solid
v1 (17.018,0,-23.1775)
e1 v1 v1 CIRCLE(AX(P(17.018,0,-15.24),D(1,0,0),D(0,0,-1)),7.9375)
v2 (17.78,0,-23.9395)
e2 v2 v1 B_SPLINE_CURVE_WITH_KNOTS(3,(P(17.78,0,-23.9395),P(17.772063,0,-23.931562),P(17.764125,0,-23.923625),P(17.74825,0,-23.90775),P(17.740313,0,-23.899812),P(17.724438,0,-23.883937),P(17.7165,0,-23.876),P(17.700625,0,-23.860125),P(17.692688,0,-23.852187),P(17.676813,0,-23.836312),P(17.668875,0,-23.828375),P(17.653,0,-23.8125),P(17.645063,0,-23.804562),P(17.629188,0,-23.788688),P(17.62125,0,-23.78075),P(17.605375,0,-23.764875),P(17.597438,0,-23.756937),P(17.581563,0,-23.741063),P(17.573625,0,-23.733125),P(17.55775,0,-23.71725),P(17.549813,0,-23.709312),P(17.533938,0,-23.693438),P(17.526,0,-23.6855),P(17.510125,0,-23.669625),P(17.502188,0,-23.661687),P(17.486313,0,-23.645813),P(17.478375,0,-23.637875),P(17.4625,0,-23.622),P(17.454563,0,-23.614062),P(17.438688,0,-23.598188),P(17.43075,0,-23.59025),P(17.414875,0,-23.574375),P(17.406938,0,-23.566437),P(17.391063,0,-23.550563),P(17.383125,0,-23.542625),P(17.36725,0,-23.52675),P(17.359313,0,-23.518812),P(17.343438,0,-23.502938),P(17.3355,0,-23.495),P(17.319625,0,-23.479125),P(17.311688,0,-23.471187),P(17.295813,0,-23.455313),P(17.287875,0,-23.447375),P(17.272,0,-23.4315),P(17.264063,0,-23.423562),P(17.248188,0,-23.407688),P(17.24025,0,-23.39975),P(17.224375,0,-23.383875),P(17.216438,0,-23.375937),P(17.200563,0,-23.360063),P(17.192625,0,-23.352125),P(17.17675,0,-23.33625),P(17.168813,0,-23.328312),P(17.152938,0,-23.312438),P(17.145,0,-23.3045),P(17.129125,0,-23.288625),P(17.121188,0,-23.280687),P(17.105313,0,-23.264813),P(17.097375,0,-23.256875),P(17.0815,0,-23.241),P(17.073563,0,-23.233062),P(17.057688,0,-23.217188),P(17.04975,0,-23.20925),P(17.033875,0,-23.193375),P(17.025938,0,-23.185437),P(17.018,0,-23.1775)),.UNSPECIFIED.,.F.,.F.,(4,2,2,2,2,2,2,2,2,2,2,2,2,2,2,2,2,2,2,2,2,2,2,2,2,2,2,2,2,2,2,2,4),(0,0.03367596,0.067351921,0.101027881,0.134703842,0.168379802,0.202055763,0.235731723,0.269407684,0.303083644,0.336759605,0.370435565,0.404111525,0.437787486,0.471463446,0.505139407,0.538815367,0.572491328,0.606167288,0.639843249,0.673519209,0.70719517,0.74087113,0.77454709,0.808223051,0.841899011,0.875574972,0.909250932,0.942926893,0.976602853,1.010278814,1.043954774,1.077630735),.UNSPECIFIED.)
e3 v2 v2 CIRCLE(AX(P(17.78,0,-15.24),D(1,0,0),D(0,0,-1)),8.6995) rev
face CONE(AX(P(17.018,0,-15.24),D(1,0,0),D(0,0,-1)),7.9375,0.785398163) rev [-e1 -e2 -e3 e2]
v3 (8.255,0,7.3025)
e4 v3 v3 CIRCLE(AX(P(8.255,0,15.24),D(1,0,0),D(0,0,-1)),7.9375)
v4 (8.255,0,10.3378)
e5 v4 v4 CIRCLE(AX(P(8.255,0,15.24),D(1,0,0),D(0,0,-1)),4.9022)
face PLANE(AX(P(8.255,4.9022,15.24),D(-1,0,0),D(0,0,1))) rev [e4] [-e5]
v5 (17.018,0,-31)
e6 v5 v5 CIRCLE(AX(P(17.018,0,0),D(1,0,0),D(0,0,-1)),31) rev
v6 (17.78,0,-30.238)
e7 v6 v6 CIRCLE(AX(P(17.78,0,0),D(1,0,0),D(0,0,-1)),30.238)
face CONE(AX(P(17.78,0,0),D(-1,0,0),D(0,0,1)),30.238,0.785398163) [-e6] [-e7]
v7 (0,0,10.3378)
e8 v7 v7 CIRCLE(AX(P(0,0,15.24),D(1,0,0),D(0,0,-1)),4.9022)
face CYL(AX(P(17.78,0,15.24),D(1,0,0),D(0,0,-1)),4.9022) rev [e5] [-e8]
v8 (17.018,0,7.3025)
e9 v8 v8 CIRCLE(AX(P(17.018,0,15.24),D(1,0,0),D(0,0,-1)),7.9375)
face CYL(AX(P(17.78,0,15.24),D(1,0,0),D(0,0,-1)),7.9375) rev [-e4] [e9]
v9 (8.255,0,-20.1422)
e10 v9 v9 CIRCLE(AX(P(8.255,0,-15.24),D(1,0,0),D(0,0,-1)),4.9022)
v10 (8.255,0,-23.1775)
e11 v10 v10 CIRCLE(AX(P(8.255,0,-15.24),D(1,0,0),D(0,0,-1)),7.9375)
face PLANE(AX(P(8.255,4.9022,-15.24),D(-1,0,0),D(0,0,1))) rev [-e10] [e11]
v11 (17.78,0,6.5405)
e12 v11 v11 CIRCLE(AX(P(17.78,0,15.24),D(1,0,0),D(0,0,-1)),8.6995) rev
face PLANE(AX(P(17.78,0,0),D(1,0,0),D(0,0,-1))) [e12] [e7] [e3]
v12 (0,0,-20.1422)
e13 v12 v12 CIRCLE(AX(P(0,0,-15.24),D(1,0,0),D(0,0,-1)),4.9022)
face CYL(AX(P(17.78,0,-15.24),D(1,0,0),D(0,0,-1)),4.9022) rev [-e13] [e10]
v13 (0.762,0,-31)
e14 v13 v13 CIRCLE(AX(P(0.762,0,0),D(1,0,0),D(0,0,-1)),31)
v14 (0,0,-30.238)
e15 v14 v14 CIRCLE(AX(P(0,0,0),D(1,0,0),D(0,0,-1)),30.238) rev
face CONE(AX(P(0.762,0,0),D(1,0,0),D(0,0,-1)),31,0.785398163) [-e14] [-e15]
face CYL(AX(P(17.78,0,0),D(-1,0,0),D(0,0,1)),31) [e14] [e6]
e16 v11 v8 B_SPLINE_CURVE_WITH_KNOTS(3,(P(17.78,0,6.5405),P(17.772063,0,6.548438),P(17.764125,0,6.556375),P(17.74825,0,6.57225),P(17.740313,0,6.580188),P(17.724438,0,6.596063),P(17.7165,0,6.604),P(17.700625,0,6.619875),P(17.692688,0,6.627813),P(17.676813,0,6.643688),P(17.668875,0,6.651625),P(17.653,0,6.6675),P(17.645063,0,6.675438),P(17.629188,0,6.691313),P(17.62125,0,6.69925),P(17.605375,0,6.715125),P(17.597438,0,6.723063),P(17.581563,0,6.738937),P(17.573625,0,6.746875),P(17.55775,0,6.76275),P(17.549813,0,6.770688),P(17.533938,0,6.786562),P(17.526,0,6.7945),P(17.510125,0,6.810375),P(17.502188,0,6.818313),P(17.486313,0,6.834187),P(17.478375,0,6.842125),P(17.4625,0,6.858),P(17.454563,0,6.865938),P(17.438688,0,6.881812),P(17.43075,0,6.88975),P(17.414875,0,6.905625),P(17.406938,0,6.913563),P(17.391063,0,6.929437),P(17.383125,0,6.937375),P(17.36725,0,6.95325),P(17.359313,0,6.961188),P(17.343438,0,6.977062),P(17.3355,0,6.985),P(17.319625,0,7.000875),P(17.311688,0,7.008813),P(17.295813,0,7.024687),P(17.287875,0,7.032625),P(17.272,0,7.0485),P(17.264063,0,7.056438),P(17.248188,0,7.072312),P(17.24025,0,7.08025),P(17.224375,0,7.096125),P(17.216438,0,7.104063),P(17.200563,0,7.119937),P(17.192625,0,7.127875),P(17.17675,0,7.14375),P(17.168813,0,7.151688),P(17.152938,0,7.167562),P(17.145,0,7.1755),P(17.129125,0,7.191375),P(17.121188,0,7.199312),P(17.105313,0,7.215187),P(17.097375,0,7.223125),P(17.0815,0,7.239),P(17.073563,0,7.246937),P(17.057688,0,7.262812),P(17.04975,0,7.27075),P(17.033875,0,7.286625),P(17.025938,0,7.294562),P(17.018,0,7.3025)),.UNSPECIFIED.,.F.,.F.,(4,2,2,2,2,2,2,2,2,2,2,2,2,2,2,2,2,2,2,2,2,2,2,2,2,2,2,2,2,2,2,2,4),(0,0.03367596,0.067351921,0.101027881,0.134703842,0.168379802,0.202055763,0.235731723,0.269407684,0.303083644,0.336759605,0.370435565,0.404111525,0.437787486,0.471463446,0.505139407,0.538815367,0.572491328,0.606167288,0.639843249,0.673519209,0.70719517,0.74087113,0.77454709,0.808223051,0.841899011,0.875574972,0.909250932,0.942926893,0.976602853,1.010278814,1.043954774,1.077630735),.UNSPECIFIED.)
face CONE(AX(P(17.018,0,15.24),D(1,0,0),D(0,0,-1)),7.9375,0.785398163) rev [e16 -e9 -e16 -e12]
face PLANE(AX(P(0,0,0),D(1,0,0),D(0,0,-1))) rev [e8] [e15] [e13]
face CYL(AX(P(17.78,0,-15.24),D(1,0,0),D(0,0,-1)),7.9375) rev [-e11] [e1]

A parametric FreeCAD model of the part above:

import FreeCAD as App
import Part
import Sketcher

V = App.Vector
Q = App.Units.Quantity


def edges_at(feature, points):
    """Names of the edges that pass closest to the given points."""
    edges = feature.Shape.Edges
    near = lambda p: min(range(len(edges)), key=lambda i: edges[i].distToShape(Part.Vertex(*p))[0])
    return sorted({f"Edge{near(p) + 1}" for p in points})

doc = App.newDocument("Part")
body = doc.addObject("PartDesign::Body", "Body")

sketch1 = body.newObject("Sketcher::SketchObject", "Sketch")
sketch1.AttachmentSupport = (doc.getObject("YZ_Plane"), [""])
sketch1.MapMode = "FlatFace"
sketch1.addGeometry(Part.Circle(V(0, 0, 0), V(0, 0, 1), 31), False)
sketch1.addConstraint(Sketcher.Constraint("Coincident", 0, 3, -1, 1))
sketch1.addConstraint(Sketcher.Constraint("Diameter", 0, 62.0))
pad1 = body.newObject("PartDesign::Pad", "Pad")
pad1.Profile = sketch1
pad1.Length = Q("0.7 in")

sketch2 = body.newObject("Sketcher::SketchObject", "Sketch001")
sketch2.AttachmentSupport = (doc.getObject("YZ_Plane"), [""])
sketch2.MapMode = "FlatFace"
sketch2.AttachmentOffset = App.Placement(V(0, 0, 0.7 * 25.4), App.Rotation())
sketch2.addGeometry(Part.Circle(V(0, 15.24, 0), V(0, 0, 1), 4.9022), False)
sketch2.addGeometry(Part.Circle(V(0, -15.24, 0), V(0, 0, 1), 4.9022), False)
sketch2.addConstraint(Sketcher.Constraint("Equal", 0, 1))
sketch2.addConstraint(Sketcher.Constraint("Symmetric", 0, 3, 1, 3, -1, 1))
sketch2.addConstraint(Sketcher.Constraint("PointOnObject", 0, 3, -2))
sketch2.addConstraint(Sketcher.Constraint("Diameter", 0, Q("0.386 in")))
sketch2.addConstraint(Sketcher.Constraint("DistanceY", -1, 1, 0, 3, Q("0.6 in")))
doc.recompute()
hole = body.newObject("PartDesign::Hole", "Hole")
hole.Profile = sketch2
hole.ThreadType = "None"
hole.Diameter = Q("0.386 in")
hole.DepthType = "Dimension"
hole.Depth = Q("0.938 in")
hole.DrillPoint = "Angled"
hole.DrillPointAngle = 118
hole.HoleCutType = "Counterbore"
hole.HoleCutDiameter = Q("0.625 in")
hole.HoleCutDepth = Q("0.375 in")
doc.recompute()

chamfer = body.newObject("PartDesign::Chamfer", "Chamfer")
chamfer.Base = (hole, edges_at(hole, [
    (17.78, 0, 23.177),
    (0, 0, 31),
    (17.78, 0, 31),
    (17.78, 0, -7.303),
]))
chamfer.Size = Q("0.03 in")

doc.recompute()
